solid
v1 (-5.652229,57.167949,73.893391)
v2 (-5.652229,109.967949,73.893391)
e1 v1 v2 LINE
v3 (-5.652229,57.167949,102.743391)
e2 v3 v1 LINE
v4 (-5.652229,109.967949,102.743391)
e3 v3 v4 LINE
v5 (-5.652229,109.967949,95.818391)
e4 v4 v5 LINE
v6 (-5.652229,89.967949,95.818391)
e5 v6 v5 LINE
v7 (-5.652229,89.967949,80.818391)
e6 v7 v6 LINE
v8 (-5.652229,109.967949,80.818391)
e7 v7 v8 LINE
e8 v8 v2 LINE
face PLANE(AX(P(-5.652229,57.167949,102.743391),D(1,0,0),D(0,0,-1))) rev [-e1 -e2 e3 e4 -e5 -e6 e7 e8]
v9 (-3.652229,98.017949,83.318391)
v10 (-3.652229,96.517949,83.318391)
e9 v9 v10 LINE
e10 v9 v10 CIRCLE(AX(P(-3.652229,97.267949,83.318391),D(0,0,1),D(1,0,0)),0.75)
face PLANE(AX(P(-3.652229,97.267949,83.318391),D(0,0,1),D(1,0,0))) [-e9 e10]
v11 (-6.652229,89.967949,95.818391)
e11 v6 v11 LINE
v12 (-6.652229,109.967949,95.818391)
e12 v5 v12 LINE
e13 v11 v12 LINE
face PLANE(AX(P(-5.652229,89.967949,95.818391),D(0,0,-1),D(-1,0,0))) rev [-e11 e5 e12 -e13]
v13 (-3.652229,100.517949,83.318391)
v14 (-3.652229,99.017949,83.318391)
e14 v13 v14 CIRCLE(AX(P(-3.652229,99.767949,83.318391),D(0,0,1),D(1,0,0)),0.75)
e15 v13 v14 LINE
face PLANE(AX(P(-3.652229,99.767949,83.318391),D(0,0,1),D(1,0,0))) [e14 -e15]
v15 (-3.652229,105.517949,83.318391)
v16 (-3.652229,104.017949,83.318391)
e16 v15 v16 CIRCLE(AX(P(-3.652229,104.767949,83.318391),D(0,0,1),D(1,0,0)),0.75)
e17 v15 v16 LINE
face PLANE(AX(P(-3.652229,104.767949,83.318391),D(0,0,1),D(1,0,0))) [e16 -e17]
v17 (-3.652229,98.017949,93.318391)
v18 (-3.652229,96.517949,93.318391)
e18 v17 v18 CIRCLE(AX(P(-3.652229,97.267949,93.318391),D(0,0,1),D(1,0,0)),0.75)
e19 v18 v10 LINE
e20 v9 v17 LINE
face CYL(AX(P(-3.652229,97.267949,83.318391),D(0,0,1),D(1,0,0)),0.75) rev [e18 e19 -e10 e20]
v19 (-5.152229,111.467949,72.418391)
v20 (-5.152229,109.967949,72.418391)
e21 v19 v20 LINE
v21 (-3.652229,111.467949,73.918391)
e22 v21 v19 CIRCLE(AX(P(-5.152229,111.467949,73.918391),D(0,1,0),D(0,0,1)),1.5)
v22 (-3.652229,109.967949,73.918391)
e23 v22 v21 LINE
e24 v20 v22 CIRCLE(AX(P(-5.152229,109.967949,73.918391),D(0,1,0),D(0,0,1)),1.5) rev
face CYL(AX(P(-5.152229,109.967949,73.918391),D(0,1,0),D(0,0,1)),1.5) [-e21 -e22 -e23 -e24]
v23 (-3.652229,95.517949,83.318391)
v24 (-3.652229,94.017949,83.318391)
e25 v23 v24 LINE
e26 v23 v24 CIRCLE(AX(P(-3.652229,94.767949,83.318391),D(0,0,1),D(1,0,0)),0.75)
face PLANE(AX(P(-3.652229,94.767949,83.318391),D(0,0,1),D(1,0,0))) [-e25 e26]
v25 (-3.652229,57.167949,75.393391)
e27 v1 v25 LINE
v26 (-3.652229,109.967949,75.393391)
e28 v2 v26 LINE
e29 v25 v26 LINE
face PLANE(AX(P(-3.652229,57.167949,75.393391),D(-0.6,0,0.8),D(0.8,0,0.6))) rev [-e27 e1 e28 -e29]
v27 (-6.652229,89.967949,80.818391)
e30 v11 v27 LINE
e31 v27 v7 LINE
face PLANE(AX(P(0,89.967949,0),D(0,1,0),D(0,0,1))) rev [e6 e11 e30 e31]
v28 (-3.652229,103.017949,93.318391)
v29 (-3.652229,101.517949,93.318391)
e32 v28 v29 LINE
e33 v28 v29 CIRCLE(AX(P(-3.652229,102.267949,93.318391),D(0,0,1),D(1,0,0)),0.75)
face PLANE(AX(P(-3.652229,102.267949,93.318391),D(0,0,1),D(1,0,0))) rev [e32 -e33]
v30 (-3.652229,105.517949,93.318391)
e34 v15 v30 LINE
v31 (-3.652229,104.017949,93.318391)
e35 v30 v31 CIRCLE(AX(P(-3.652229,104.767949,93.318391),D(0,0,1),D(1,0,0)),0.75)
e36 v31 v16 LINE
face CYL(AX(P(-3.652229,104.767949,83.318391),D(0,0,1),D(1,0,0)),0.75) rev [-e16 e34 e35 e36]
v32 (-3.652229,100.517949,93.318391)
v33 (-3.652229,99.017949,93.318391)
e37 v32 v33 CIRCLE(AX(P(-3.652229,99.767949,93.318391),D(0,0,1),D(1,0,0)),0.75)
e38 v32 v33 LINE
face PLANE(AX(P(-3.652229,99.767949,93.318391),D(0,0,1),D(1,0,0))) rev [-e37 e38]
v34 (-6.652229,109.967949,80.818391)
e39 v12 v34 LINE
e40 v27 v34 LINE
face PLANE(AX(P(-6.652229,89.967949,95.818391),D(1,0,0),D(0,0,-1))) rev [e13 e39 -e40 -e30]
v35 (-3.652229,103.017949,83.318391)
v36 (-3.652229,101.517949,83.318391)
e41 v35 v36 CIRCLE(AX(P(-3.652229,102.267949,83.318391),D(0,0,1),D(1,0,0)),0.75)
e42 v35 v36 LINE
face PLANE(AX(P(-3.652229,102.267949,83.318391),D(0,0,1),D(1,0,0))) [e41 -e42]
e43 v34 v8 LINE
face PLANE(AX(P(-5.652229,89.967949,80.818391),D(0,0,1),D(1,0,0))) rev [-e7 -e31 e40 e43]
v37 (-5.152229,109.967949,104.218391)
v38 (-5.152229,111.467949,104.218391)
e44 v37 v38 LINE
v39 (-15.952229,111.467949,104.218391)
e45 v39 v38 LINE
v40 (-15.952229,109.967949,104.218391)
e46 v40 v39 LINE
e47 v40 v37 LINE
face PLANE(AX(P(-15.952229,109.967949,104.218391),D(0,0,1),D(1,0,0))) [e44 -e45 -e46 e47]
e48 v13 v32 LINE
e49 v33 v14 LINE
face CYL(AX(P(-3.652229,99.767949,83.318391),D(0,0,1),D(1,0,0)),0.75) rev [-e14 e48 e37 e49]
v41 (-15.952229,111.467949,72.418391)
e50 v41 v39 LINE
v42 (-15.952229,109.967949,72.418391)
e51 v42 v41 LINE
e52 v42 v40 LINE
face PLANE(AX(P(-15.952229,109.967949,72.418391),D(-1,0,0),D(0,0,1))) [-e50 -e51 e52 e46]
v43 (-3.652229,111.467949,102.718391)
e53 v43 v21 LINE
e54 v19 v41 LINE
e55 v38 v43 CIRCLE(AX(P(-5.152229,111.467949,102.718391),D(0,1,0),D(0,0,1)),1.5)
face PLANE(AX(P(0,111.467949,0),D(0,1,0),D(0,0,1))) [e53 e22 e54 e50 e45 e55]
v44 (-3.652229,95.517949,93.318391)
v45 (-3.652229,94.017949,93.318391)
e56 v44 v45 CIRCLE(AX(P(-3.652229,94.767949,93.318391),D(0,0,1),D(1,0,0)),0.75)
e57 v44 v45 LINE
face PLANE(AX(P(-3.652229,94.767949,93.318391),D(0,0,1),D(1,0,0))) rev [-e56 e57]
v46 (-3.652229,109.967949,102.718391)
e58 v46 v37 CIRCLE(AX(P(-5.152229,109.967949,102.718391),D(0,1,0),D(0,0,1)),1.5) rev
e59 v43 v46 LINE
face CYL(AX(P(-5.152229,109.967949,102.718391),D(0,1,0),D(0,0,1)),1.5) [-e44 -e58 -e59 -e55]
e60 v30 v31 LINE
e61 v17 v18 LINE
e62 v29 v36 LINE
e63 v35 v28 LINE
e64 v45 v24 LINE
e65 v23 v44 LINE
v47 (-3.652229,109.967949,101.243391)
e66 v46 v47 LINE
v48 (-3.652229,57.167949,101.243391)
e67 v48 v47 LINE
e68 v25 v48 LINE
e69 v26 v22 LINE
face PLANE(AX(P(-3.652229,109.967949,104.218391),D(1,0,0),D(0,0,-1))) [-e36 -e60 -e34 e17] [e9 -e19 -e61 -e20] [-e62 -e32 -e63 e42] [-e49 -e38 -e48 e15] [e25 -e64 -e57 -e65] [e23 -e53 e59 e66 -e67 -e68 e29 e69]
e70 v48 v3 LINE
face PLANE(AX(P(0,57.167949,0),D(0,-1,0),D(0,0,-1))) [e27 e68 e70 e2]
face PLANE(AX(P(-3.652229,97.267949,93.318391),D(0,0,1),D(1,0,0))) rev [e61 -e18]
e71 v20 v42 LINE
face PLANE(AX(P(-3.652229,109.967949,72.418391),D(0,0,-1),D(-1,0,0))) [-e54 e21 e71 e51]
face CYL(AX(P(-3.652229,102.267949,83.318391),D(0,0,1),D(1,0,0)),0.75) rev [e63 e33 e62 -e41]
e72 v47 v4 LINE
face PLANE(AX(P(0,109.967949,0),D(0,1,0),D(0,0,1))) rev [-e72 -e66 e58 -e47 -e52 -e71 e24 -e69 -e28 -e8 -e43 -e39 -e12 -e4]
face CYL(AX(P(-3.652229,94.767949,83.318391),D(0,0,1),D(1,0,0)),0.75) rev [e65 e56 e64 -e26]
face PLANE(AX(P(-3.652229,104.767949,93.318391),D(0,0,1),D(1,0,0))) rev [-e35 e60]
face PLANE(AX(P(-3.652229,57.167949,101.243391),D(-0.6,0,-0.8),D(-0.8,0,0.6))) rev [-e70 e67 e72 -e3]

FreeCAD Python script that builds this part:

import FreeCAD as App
import Part
import Sketcher

V = App.Vector
Q = App.Units.Quantity


def edges_at(feature, points):
    """Names of the edges that pass closest to the given points."""
    edges = feature.Shape.Edges
    near = lambda p: min(range(len(edges)), key=lambda i: edges[i].distToShape(Part.Vertex(*p))[0])
    return sorted({f"Edge{near(p) + 1}" for p in points})

doc = App.newDocument("Part")
params = doc.addObject("Spreadsheet::Sheet", "Params")
for row, (alias, value) in enumerate([
    ("sketch1_width", "12.3 mm"),
    ("sketch1_height", "31.8 mm"),
    ("pad1_length", "1.5 mm"),
    ("sketch2_length", "2.5 mm"),
    ("sketch2_height", "28.85 mm"),
    ("pad2_length", "52.8 mm"),
    ("sketch3_width", "1 mm"),
    ("sketch3_height", "15 mm"),
    ("pad3_length", "20 mm"),
    ("sketch4_diameter", "1.5 mm"),
    ("pocket1_length", "10 mm"),
    ("fillet_radius", "1.5 mm"),
], start=1):
    params.set(f"A{row}", alias)
    params.set(f"B{row}", "=" + value)
    params.setAlias(f"B{row}", alias)

body = doc.addObject("PartDesign::Body", "Body")

sketch1 = body.newObject("Sketcher::SketchObject", "Sketch")
sketch1.AttachmentSupport = (doc.getObject("XZ_Plane"), [""])
sketch1.MapMode = "FlatFace"
sketch1.AttachmentOffset = App.Placement(V(0, 0, -111.467949), App.Rotation())
sketch1.addGeometry([
    Part.LineSegment(V(-16, 72, 0), V(-16, 104, 0)),
    Part.LineSegment(V(-16, 104, 0), V(-4, 104, 0)),
    Part.LineSegment(V(-4, 104, 0), V(-4, 72, 0)),
    Part.LineSegment(V(-4, 72, 0), V(-16, 72, 0)),
], False)
sketch1.addConstraint([
    Sketcher.Constraint("Coincident", 0, 2, 1, 1),
    Sketcher.Constraint("Coincident", 1, 2, 2, 1),
    Sketcher.Constraint("Coincident", 2, 2, 3, 1),
    Sketcher.Constraint("Coincident", 3, 2, 0, 1),
    Sketcher.Constraint("Vertical", 0),
    Sketcher.Constraint("Horizontal", 1),
    Sketcher.Constraint("Vertical", 2),
    Sketcher.Constraint("Horizontal", 3),
    Sketcher.Constraint("DistanceX", 1, 1, 1, 2, Q("12.3 mm")),
    Sketcher.Constraint("DistanceY", 0, 1, 0, 2, Q("31.8 mm")),
    Sketcher.Constraint("DistanceX", 0, 2, -1, 1, Q("15.952229 mm")),
    Sketcher.Constraint("DistanceY", -1, 1, 0, 2, Q("104.218391 mm")),
])
sketch1.setExpression("Constraints[8]", "Params.sketch1_width")
sketch1.setExpression("Constraints[9]", "Params.sketch1_height")
pad1 = body.newObject("PartDesign::Pad", "Pad")
pad1.Profile = sketch1
pad1.setExpression("Length", "Params.pad1_length")

sketch2 = body.newObject("Sketcher::SketchObject", "Sketch001")
sketch2.AttachmentSupport = (doc.getObject("XZ_Plane"), [""])
sketch2.MapMode = "FlatFace"
sketch2.AttachmentOffset = App.Placement(V(0, 0, -109.967949), App.Rotation())
sketch2.addGeometry([
    Part.LineSegment(V(-3.7, 101.2, 0), V(-5.7, 102.7, 0)),
    Part.LineSegment(V(-5.7, 102.7, 0), V(-5.7, 73.9, 0)),
    Part.LineSegment(V(-5.7, 73.9, 0), V(-3.7, 75.4, 0)),
    Part.LineSegment(V(-3.7, 75.4, 0), V(-3.7, 101.2, 0)),
], False)
sketch2.addConstraint([
    Sketcher.Constraint("Coincident", 0, 2, 1, 1),
    Sketcher.Constraint("Coincident", 1, 2, 2, 1),
    Sketcher.Constraint("Coincident", 2, 2, 3, 1),
    Sketcher.Constraint("Coincident", 3, 2, 0, 1),
    Sketcher.Constraint("Vertical", 1),
    Sketcher.Constraint("Vertical", 3),
    Sketcher.Constraint("Equal", 0, 2),
    Sketcher.Constraint("DistanceX", 1, 2, 2, 2, Q("2 mm")),
    Sketcher.Constraint("Distance", 0, Q("2.5 mm")),
    Sketcher.Constraint("DistanceY", 1, 2, 1, 1, Q("28.85 mm")),
    Sketcher.Constraint("DistanceX", 0, 2, -1, 1, Q("5.652229 mm")),
    Sketcher.Constraint("DistanceY", -1, 1, 0, 2, Q("102.743391 mm")),
])
sketch2.setExpression("Constraints[8]", "Params.sketch2_length")
sketch2.setExpression("Constraints[9]", "Params.sketch2_height")
pad2 = body.newObject("PartDesign::Pad", "Pad001")
pad2.Profile = sketch2
pad2.setExpression("Length", "Params.pad2_length")

sketch3 = body.newObject("Sketcher::SketchObject", "Sketch002")
sketch3.AttachmentSupport = (doc.getObject("XZ_Plane"), [""])
sketch3.MapMode = "FlatFace"
sketch3.AttachmentOffset = App.Placement(V(0, 0, -109.967949), App.Rotation())
sketch3.addGeometry([
    Part.LineSegment(V(-6.7, 95.8, 0), V(-6.7, 80.8, 0)),
    Part.LineSegment(V(-6.7, 80.8, 0), V(-5.7, 80.8, 0)),
    Part.LineSegment(V(-5.7, 80.8, 0), V(-5.7, 95.8, 0)),
    Part.LineSegment(V(-5.7, 95.8, 0), V(-6.7, 95.8, 0)),
], False)
sketch3.addConstraint([
    Sketcher.Constraint("Coincident", 0, 2, 1, 1),
    Sketcher.Constraint("Coincident", 1, 2, 2, 1),
    Sketcher.Constraint("Coincident", 2, 2, 3, 1),
    Sketcher.Constraint("Coincident", 3, 2, 0, 1),
    Sketcher.Constraint("Vertical", 0),
    Sketcher.Constraint("Horizontal", 1),
    Sketcher.Constraint("Vertical", 2),
    Sketcher.Constraint("Horizontal", 3),
    Sketcher.Constraint("DistanceX", 1, 1, 1, 2, Q("1 mm")),
    Sketcher.Constraint("DistanceY", 0, 2, 0, 1, Q("15 mm")),
    Sketcher.Constraint("DistanceX", 0, 2, -1, 1, Q("6.652229 mm")),
    Sketcher.Constraint("DistanceY", -1, 1, 0, 2, Q("80.818391 mm")),
])
sketch3.setExpression("Constraints[8]", "Params.sketch3_width")
sketch3.setExpression("Constraints[9]", "Params.sketch3_height")
pad3 = body.newObject("PartDesign::Pad", "Pad002")
pad3.Profile = sketch3
pad3.setExpression("Length", "Params.pad3_length")

sketch4 = body.newObject("Sketcher::SketchObject", "Sketch003")
sketch4.AttachmentSupport = (doc.getObject("XY_Plane"), [""])
sketch4.MapMode = "FlatFace"
sketch4.AttachmentOffset = App.Placement(V(0, 0, 88.318391), App.Rotation())
sketch4.addGeometry([
    Part.Circle(V(-3.7, 104.8, 0), V(0, 0, 1), 0.8),
    Part.Circle(V(-3.7, 102.3, 0), V(0, 0, 1), 0.8),
    Part.Circle(V(-3.7, 99.8, 0), V(0, 0, 1), 0.8),
    Part.Circle(V(-3.7, 97.3, 0), V(0, 0, 1), 0.8),
    Part.Circle(V(-3.7, 94.8, 0), V(0, 0, 1), 0.8),
], False)
sketch4.addConstraint([
    Sketcher.Constraint("Equal", 0, 1),
    Sketcher.Constraint("Equal", 1, 2),
    Sketcher.Constraint("Equal", 2, 3),
    Sketcher.Constraint("Equal", 3, 4),
    Sketcher.Constraint("Vertical", 0, 3, 1, 3),
    Sketcher.Constraint("Vertical", 1, 3, 2, 3),
    Sketcher.Constraint("Vertical", 2, 3, 3, 3),
    Sketcher.Constraint("Vertical", 3, 3, 4, 3),
    Sketcher.Constraint("Diameter", 0, Q("1.5 mm")),
    Sketcher.Constraint("DistanceY", 2, 3, 0, 3, Q("5 mm")),
    Sketcher.Constraint("DistanceY", 3, 3, 1, 3, Q("5 mm")),
    Sketcher.Constraint("DistanceY", 4, 3, 2, 3, Q("5 mm")),
    Sketcher.Constraint("DistanceY", 1, 3, 0, 3, Q("2.5 mm")),
    Sketcher.Constraint("DistanceX", 0, 3, -1, 1, Q("3.652229 mm")),
    Sketcher.Constraint("DistanceY", -1, 1, 0, 3, Q("104.767949 mm")),
])
sketch4.setExpression("Constraints[8]", "Params.sketch4_diameter")
pocket1 = body.newObject("PartDesign::Pocket", "Pocket")
pocket1.Profile = sketch4
pocket1.setExpression("Length", "Params.pocket1_length")
pocket1.Midplane = True
doc.recompute()

fillet = body.newObject("PartDesign::Fillet", "Fillet")
fillet.Base = (pocket1, edges_at(pocket1, [(-3.652, 110.718, 72.418), (-3.652, 110.718, 104.218)]))
fillet.setExpression("Radius", "Params.fillet_radius")

doc.recompute()
